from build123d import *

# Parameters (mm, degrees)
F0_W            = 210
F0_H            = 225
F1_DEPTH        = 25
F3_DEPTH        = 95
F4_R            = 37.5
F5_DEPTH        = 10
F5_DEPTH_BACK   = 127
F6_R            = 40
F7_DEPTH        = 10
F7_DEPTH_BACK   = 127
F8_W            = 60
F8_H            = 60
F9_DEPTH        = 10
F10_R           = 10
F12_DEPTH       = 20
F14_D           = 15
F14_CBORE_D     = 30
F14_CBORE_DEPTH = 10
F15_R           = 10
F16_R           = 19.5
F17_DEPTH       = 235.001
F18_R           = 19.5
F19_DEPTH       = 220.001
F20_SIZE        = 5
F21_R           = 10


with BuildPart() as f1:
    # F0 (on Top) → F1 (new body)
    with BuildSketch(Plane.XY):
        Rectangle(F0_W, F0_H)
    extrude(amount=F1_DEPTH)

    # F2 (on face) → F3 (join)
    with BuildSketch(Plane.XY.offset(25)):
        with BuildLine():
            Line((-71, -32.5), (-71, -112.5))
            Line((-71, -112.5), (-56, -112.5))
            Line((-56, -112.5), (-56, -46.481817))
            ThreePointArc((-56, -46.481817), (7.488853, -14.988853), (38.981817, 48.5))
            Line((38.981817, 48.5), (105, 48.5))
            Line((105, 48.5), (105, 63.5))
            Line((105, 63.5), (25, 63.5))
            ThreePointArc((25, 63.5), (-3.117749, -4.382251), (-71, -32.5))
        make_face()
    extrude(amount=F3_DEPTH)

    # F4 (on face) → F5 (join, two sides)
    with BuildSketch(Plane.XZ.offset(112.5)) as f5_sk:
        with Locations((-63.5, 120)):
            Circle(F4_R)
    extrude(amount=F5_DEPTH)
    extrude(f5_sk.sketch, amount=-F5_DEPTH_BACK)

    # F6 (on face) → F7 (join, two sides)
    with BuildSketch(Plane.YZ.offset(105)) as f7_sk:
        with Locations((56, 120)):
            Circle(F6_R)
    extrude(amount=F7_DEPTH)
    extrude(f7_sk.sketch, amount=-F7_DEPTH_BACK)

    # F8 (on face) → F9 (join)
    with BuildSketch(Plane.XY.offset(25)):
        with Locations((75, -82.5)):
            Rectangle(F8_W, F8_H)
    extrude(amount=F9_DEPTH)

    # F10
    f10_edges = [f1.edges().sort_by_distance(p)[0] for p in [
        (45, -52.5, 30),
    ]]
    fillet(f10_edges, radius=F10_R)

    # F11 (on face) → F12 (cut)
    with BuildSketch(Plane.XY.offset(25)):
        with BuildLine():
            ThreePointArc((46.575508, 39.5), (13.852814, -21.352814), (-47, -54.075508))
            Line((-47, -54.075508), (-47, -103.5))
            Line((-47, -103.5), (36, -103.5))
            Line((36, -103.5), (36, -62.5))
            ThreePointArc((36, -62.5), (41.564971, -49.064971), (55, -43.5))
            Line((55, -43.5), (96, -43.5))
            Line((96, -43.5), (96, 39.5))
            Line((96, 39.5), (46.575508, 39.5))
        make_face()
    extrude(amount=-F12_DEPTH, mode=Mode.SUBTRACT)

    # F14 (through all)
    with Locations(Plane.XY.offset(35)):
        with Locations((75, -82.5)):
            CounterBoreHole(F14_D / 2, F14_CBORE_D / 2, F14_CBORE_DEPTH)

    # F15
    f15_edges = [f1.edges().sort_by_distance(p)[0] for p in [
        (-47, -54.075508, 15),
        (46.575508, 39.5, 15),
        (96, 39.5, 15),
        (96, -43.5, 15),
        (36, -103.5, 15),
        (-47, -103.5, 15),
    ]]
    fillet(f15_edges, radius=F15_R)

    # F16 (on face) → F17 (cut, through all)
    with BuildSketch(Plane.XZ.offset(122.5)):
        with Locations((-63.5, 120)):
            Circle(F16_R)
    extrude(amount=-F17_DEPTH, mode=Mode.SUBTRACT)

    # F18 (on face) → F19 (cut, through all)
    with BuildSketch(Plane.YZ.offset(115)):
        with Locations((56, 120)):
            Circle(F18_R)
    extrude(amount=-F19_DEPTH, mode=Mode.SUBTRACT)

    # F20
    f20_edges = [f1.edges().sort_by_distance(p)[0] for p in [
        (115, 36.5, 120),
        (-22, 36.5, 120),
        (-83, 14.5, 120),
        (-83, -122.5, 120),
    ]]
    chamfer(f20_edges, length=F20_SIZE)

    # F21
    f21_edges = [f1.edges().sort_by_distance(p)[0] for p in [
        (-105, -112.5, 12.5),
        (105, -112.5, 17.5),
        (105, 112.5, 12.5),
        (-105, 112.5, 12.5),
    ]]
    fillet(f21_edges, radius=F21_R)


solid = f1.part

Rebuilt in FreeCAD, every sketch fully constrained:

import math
import FreeCAD as App
import Part
import Sketcher

V = App.Vector
Q = App.Units.Quantity


def edges_at(feature, points):
    """Names of the edges that pass closest to the given points."""
    edges = feature.Shape.Edges
    near = lambda p: min(range(len(edges)), key=lambda i: edges[i].distToShape(Part.Vertex(*p))[0])
    return sorted({f"Edge{near(p) + 1}" for p in points})

doc = App.newDocument("Part")
body = doc.addObject("PartDesign::Body", "Body")

sketch1 = doc.addObject("Sketcher::SketchObject", "Sketch")
body.addObject(sketch1)
sketch1.AttachmentSupport = (doc.XY_Plane, [""])
sketch1.MapMode = "FlatFace"
sketch1.addGeometry([
    Part.LineSegment(V(-105, 112.5, 0), V(-105, -112.5, 0)),
    Part.LineSegment(V(-105, -112.5, 0), V(105, -112.5, 0)),
    Part.LineSegment(V(105, -112.5, 0), V(105, 112.5, 0)),
    Part.LineSegment(V(105, 112.5, 0), V(-105, 112.5, 0)),
], False)
sketch1.addConstraint([
    Sketcher.Constraint("Coincident", 0, 2, 1, 1),
    Sketcher.Constraint("Coincident", 1, 2, 2, 1),
    Sketcher.Constraint("Coincident", 2, 2, 3, 1),
    Sketcher.Constraint("Coincident", 3, 2, 0, 1),
    Sketcher.Constraint("Vertical", 0),
    Sketcher.Constraint("Horizontal", 1),
    Sketcher.Constraint("Vertical", 2),
    Sketcher.Constraint("Horizontal", 3),
    Sketcher.Constraint("Symmetric", 0, 2, 2, 2, -1, 1),
    Sketcher.Constraint("DistanceX", 1, 1, 1, 2, Q("210 mm")),
    Sketcher.Constraint("DistanceY", 0, 2, 0, 1, Q("225 mm")),
])
pad1 = doc.addObject("PartDesign::Pad", "Pad")
body.addObject(pad1)
pad1.Profile = sketch1
pad1.Length = 25

sketch2 = doc.addObject("Sketcher::SketchObject", "Sketch001")
body.addObject(sketch2)
sketch2.AttachmentSupport = (doc.XY_Plane, [""])
sketch2.MapMode = "FlatFace"
sketch2.AttachmentOffset = App.Placement(V(0, 0, 25), App.Rotation())
sketch2.addGeometry([
    Part.LineSegment(V(-71, -32.5, 0), V(-71, -112.5, 0)),
    Part.LineSegment(V(-71, -112.5, 0), V(-56, -112.5, 0)),
    Part.LineSegment(V(-56, -112.5, 0), V(-56, -46.481817, 0)),
    Part.ArcOfCircle(Part.Circle(V(-71, 63.5, 0), V(0, 0, 1), 111), math.radians(-82.233566), math.radians(-7.766434)),
    Part.LineSegment(V(38.981817, 48.5, 0), V(105, 48.5, 0)),
    Part.LineSegment(V(105, 48.5, 0), V(105, 63.5, 0)),
    Part.LineSegment(V(105, 63.5, 0), V(25, 63.5, 0)),
    Part.ArcOfCircle(Part.Circle(V(-71, 63.5, 0), V(0, 0, 1), 96), math.radians(-90), math.radians(0)),
], False)
sketch2.addConstraint([
    Sketcher.Constraint("Coincident", 0, 2, 1, 1),
    Sketcher.Constraint("Coincident", 1, 2, 2, 1),
    Sketcher.Constraint("Coincident", 2, 2, 3, 1),
    Sketcher.Constraint("Coincident", 3, 2, 4, 1),
    Sketcher.Constraint("Coincident", 4, 2, 5, 1),
    Sketcher.Constraint("Coincident", 5, 2, 6, 1),
    Sketcher.Constraint("Coincident", 6, 2, 7, 2),
    Sketcher.Constraint("Coincident", 7, 1, 0, 1),
    Sketcher.Constraint("Vertical", 0),
    Sketcher.Constraint("Horizontal", 1),
    Sketcher.Constraint("Vertical", 2),
    Sketcher.Constraint("Horizontal", 4),
    Sketcher.Constraint("Vertical", 5),
    Sketcher.Constraint("Horizontal", 6),
    Sketcher.Constraint("Coincident", 7, 3, 3, 3),
    Sketcher.Constraint("Horizontal", 7, 3, 5, 2),
    Sketcher.Constraint("Vertical", 7, 3, 0, 2),
    Sketcher.Constraint("Equal", 6, 0),
    Sketcher.Constraint("Equal", 4, 2),
    Sketcher.Constraint("Radius", 3, Q("111 mm")),
    Sketcher.Constraint("Radius", 7, Q("96 mm")),
    Sketcher.Constraint("DistanceX", 1, 1, 1, 2, Q("15 mm")),
    Sketcher.Constraint("DistanceX", 6, 2, 6, 1, Q("80 mm")),
    Sketcher.Constraint("DistanceX", 3, 3, -1, 1, Q("71 mm")),
    Sketcher.Constraint("DistanceY", -1, 1, 3, 3, Q("63.5 mm")),
])
pad2 = doc.addObject("PartDesign::Pad", "Pad001")
body.addObject(pad2)
pad2.Profile = sketch2
pad2.Length = 95

sketch3 = doc.addObject("Sketcher::SketchObject", "Sketch002")
body.addObject(sketch3)
sketch3.AttachmentSupport = (doc.XZ_Plane, [""])
sketch3.MapMode = "FlatFace"
sketch3.AttachmentOffset = App.Placement(V(0, 0, 112.5), App.Rotation())
sketch3.addGeometry(Part.Circle(V(-63.5, 120, 0), V(0, 0, 1), 37.5), False)
sketch3.addConstraint([
    Sketcher.Constraint("Diameter", 0, Q("75 mm")),
    Sketcher.Constraint("DistanceY", -1, 1, 0, 3, Q("120 mm")),
    Sketcher.Constraint("DistanceX", 0, 3, -1, 1, Q("63.5 mm")),
])
pad3 = doc.addObject("PartDesign::Pad", "Pad002")
body.addObject(pad3)
pad3.Profile = sketch3
pad3.Type = "TwoLengths"
pad3.Length = 10
pad3.Length2 = 127

sketch4 = doc.addObject("Sketcher::SketchObject", "Sketch003")
body.addObject(sketch4)
sketch4.AttachmentSupport = (doc.YZ_Plane, [""])
sketch4.MapMode = "FlatFace"
sketch4.AttachmentOffset = App.Placement(V(0, 0, 105), App.Rotation())
sketch4.addGeometry(Part.Circle(V(56, 120, 0), V(0, 0, 1), 40), False)
sketch4.addConstraint([
    Sketcher.Constraint("Diameter", 0, Q("80 mm")),
    Sketcher.Constraint("DistanceX", -1, 1, 0, 3, Q("56 mm")),
    Sketcher.Constraint("DistanceY", -1, 1, 0, 3, Q("120 mm")),
])
pad4 = doc.addObject("PartDesign::Pad", "Pad003")
body.addObject(pad4)
pad4.Profile = sketch4
pad4.Type = "TwoLengths"
pad4.Length = 10
pad4.Length2 = 127

sketch5 = doc.addObject("Sketcher::SketchObject", "Sketch004")
body.addObject(sketch5)
sketch5.AttachmentSupport = (doc.XY_Plane, [""])
sketch5.MapMode = "FlatFace"
sketch5.AttachmentOffset = App.Placement(V(0, 0, 25), App.Rotation())
sketch5.addGeometry([
    Part.LineSegment(V(45, -52.5, 0), V(45, -112.5, 0)),
    Part.LineSegment(V(45, -112.5, 0), V(105, -112.5, 0)),
    Part.LineSegment(V(105, -112.5, 0), V(105, -52.5, 0)),
    Part.LineSegment(V(105, -52.5, 0), V(45, -52.5, 0)),
], False)
sketch5.addConstraint([
    Sketcher.Constraint("Coincident", 0, 2, 1, 1),
    Sketcher.Constraint("Coincident", 1, 2, 2, 1),
    Sketcher.Constraint("Coincident", 2, 2, 3, 1),
    Sketcher.Constraint("Coincident", 3, 2, 0, 1),
    Sketcher.Constraint("Vertical", 0),
    Sketcher.Constraint("Horizontal", 1),
    Sketcher.Constraint("Vertical", 2),
    Sketcher.Constraint("Horizontal", 3),
    Sketcher.Constraint("Equal", 3, 0),
    Sketcher.Constraint("DistanceX", 1, 1, 1, 2, Q("60 mm")),
    Sketcher.Constraint("DistanceX", -1, 1, 0, 2, Q("45 mm")),
    Sketcher.Constraint("DistanceY", 0, 2, -1, 1, Q("112.5 mm")),
])
pad5 = doc.addObject("PartDesign::Pad", "Pad004")
body.addObject(pad5)
pad5.Profile = sketch5
pad5.Length = 10
doc.recompute()

fillet = doc.addObject("PartDesign::Fillet", "Fillet")
body.addObject(fillet)
fillet.Base = (pad5, edges_at(pad5, [(45, -52.5, 30)]))
fillet.Radius = 10

sketch6 = doc.addObject("Sketcher::SketchObject", "Sketch005")
body.addObject(sketch6)
sketch6.AttachmentSupport = (doc.XY_Plane, [""])
sketch6.MapMode = "FlatFace"
sketch6.AttachmentOffset = App.Placement(V(0, 0, 25), App.Rotation())
sketch6.addGeometry([
    Part.ArcOfCircle(Part.Circle(V(-71, 63.5, 0), V(0, 0, 1), 120), math.radians(-78.463041), math.radians(-11.536959)),
    Part.LineSegment(V(-47, -54.075508, 0), V(-47, -103.5, 0)),
    Part.LineSegment(V(-47, -103.5, 0), V(36, -103.5, 0)),
    Part.LineSegment(V(36, -103.5, 0), V(36, -62.5, 0)),
    Part.ArcOfCircle(Part.Circle(V(54.999999, -62.499999, 0), V(0, 0, 1), 18.999999), math.radians(89.999998), math.radians(180.000002)),
    Part.LineSegment(V(55, -43.5, 0), V(96, -43.5, 0)),
    Part.LineSegment(V(96, -43.5, 0), V(96, 39.5, 0)),
    Part.LineSegment(V(96, 39.5, 0), V(46.575508, 39.5, 0)),
], False)
sketch6.addConstraint([
    Sketcher.Constraint("Coincident", 0, 1, 1, 1),
    Sketcher.Constraint("Coincident", 1, 2, 2, 1),
    Sketcher.Constraint("Coincident", 2, 2, 3, 1),
    Sketcher.Constraint("Tangent", 3, 2, 4, 2),
    Sketcher.Constraint("Tangent", 4, 1, 5, 1),
    Sketcher.Constraint("Coincident", 5, 2, 6, 1),
    Sketcher.Constraint("Coincident", 6, 2, 7, 1),
    Sketcher.Constraint("Coincident", 7, 2, 0, 2),
    Sketcher.Constraint("Vertical", 1),
    Sketcher.Constraint("Horizontal", 2),
    Sketcher.Constraint("Vertical", 3),
    Sketcher.Constraint("Horizontal", 5),
    Sketcher.Constraint("Vertical", 6),
    Sketcher.Constraint("Horizontal", 7),
    Sketcher.Constraint("Equal", 7, 1),
    Sketcher.Constraint("Equal", 5, 3),
    Sketcher.Constraint("Equal", 2, 6),
    Sketcher.Constraint("Radius", 0, Q("120 mm")),
    Sketcher.Constraint("Radius", 4, Q("18.999999 mm")),
    Sketcher.Constraint("DistanceX", 2, 1, 2, 2, Q("83 mm")),
    Sketcher.Constraint("DistanceX", 5, 1, 5, 2, Q("41 mm")),
    Sketcher.Constraint("DistanceX", 0, 3, -1, 1, Q("71 mm")),
    Sketcher.Constraint("DistanceX", -1, 1, 4, 3, Q("54.999999 mm")),
    Sketcher.Constraint("DistanceY", -1, 1, 0, 3, Q("63.5 mm")),
])
pocket1 = doc.addObject("PartDesign::Pocket", "Pocket")
body.addObject(pocket1)
pocket1.Profile = sketch6
pocket1.Length = 20

sketch7 = doc.addObject("Sketcher::SketchObject", "Sketch006")
body.addObject(sketch7)
sketch7.AttachmentSupport = (doc.XY_Plane, [""])
sketch7.MapMode = "FlatFace"
sketch7.AttachmentOffset = App.Placement(V(0, 0, 35), App.Rotation())
sketch7.addGeometry(Part.Circle(V(75, -82.5, 0), V(0, 0, 1), 7.5), False)
sketch7.addConstraint([
    Sketcher.Constraint("Diameter", 0, Q("15 mm")),
    Sketcher.Constraint("DistanceX", -1, 1, 0, 3, Q("75 mm")),
    Sketcher.Constraint("DistanceY", 0, 3, -1, 1, Q("82.5 mm")),
])
doc.recompute()
hole = doc.addObject("PartDesign::Hole", "Hole")
body.addObject(hole)
hole.Profile = sketch7
hole.ThreadType = "None"
hole.Diameter = 15
hole.DepthType = "ThroughAll"
hole.HoleCutType = "Counterbore"
hole.HoleCutDiameter = 30
hole.HoleCutDepth = 10
doc.recompute()

fillet2 = doc.addObject("PartDesign::Fillet", "Fillet001")
body.addObject(fillet2)
fillet2.Base = (hole, edges_at(hole, [
    (-47, -54.076, 15),
    (46.576, 39.5, 15),
    (96, 39.5, 15),
    (96, -43.5, 15),
    (36, -103.5, 15),
    (-47, -103.5, 15),
]))
fillet2.Radius = 10

sketch8 = doc.addObject("Sketcher::SketchObject", "Sketch007")
body.addObject(sketch8)
sketch8.AttachmentSupport = (doc.XZ_Plane, [""])
sketch8.MapMode = "FlatFace"
sketch8.AttachmentOffset = App.Placement(V(0, 0, 122.5), App.Rotation())
sketch8.addGeometry(Part.Circle(V(-63.5, 120, 0), V(0, 0, 1), 19.5), False)
sketch8.addConstraint([
    Sketcher.Constraint("Diameter", 0, Q("39 mm")),
    Sketcher.Constraint("DistanceY", -1, 1, 0, 3, Q("120 mm")),
    Sketcher.Constraint("DistanceX", 0, 3, -1, 1, Q("63.5 mm")),
])
pocket2 = doc.addObject("PartDesign::Pocket", "Pocket001")
body.addObject(pocket2)
pocket2.Profile = sketch8
pocket2.Type = "ThroughAll"

sketch9 = doc.addObject("Sketcher::SketchObject", "Sketch008")
body.addObject(sketch9)
sketch9.AttachmentSupport = (doc.YZ_Plane, [""])
sketch9.MapMode = "FlatFace"
sketch9.AttachmentOffset = App.Placement(V(0, 0, 115), App.Rotation())
sketch9.addGeometry(Part.Circle(V(56, 120, 0), V(0, 0, 1), 19.5), False)
sketch9.addConstraint([
    Sketcher.Constraint("Diameter", 0, Q("39 mm")),
    Sketcher.Constraint("DistanceX", -1, 1, 0, 3, Q("56 mm")),
    Sketcher.Constraint("DistanceY", -1, 1, 0, 3, Q("120 mm")),
])
pocket3 = doc.addObject("PartDesign::Pocket", "Pocket002")
body.addObject(pocket3)
pocket3.Profile = sketch9
pocket3.Type = "ThroughAll"
doc.recompute()

chamfer = doc.addObject("PartDesign::Chamfer", "Chamfer")
body.addObject(chamfer)
chamfer.Base = (pocket3, edges_at(pocket3, [
    (115, 36.5, 120),
    (-22, 36.5, 120),
    (-83, 14.5, 120),
    (-83, -122.5, 120),
]))
chamfer.Size = 5
doc.recompute()

fillet3 = doc.addObject("PartDesign::Fillet", "Fillet002")
body.addObject(fillet3)
fillet3.Base = (chamfer, edges_at(chamfer, [
    (-105, -112.5, 12.5),
    (105, -112.5, 17.5),
    (105, 112.5, 12.5),
    (-105, 112.5, 12.5),
]))
fillet3.Radius = 10

doc.recompute()
